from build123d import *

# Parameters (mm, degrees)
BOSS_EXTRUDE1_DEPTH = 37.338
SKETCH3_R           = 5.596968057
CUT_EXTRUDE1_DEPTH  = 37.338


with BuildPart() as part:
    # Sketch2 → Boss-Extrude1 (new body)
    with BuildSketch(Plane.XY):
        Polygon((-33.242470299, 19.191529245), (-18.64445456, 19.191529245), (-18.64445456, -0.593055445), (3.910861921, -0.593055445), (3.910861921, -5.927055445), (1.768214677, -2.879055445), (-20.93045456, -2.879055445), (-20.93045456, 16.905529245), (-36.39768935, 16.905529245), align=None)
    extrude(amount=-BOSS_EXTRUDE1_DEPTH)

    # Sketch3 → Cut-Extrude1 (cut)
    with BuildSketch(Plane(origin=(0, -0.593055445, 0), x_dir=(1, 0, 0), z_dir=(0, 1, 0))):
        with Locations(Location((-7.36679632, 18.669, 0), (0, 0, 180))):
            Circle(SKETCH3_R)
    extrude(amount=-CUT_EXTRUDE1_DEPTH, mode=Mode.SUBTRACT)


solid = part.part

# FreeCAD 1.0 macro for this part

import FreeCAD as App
import Part
import Sketcher
Q = App.Units.Quantity

doc = App.newDocument("Part")
body = doc.addObject("PartDesign::Body", "Body")

# Sketch on XY plane
sketch1 = body.newObject("Sketcher::SketchObject", "Sketch")
sketch1.AttachmentSupport = (doc.getObject("XY_Plane"), [""])
sketch1.MapMode = "FlatFace"
sketch1.addGeometry([
    Part.LineSegment(App.Vector(-18.6, 19.2, 0), App.Vector(-33.2, 19.2, 0)),  # 0
    Part.LineSegment(App.Vector(-33.2, 19.2, 0), App.Vector(-36.4, 16.9, 0)),  # 1
    Part.LineSegment(App.Vector(-36.4, 16.9, 0), App.Vector(-20.9, 16.9, 0)),  # 2
    Part.LineSegment(App.Vector(-20.9, 16.9, 0), App.Vector(-20.9, -2.9, 0)),  # 3
    Part.LineSegment(App.Vector(-20.9, -2.9, 0), App.Vector(1.8, -2.9, 0)),  # 4
    Part.LineSegment(App.Vector(1.8, -2.9, 0), App.Vector(3.9, -5.9, 0)),  # 5
    Part.LineSegment(App.Vector(3.9, -5.9, 0), App.Vector(3.9, -0.6, 0)),  # 6
    Part.LineSegment(App.Vector(3.9, -0.6, 0), App.Vector(-18.6, -0.6, 0)),  # 7
    Part.LineSegment(App.Vector(-18.6, -0.6, 0), App.Vector(-18.6, 19.2, 0)),  # 8
], False)
sketch1.addConstraint([
    Sketcher.Constraint("Coincident", 0, 2, 1, 1),
    Sketcher.Constraint("Coincident", 1, 2, 2, 1),
    Sketcher.Constraint("Coincident", 2, 2, 3, 1),
    Sketcher.Constraint("Coincident", 3, 2, 4, 1),
    Sketcher.Constraint("Coincident", 4, 2, 5, 1),
    Sketcher.Constraint("Coincident", 5, 2, 6, 1),
    Sketcher.Constraint("Coincident", 6, 2, 7, 1),
    Sketcher.Constraint("Coincident", 7, 2, 8, 1),
    Sketcher.Constraint("Coincident", 8, 2, 0, 1),
    Sketcher.Constraint("Horizontal", 0),
    Sketcher.Constraint("Horizontal", 2),
    Sketcher.Constraint("Vertical", 3),
    Sketcher.Constraint("Horizontal", 4),
    Sketcher.Constraint("Vertical", 6),
    Sketcher.Constraint("Horizontal", 7),
    Sketcher.Constraint("Vertical", 8),
    Sketcher.Constraint("Equal", 3, 8),
    Sketcher.Constraint("DistanceY", 6, 1, 6, 2, Q("0.21 in")),
    Sketcher.Constraint("DistanceY", 1, 2, 0, 2, Q("0.09 in")),
    Sketcher.Constraint("DistanceX", 3, 2, 7, 2, Q("0.09 in")),
    Sketcher.Constraint("DistanceX", 4, 1, 4, 2, Q("22.698669 mm")),
    Sketcher.Constraint("DistanceX", 0, 2, 0, 1, Q("14.598016 mm")),
    Sketcher.Constraint("DistanceX", 2, 1, 2, 2, Q("15.467235 mm")),
    Sketcher.Constraint("DistanceX", 7, 2, 7, 1, Q("22.555316 mm")),
    Sketcher.Constraint("DistanceY", 3, 2, 3, 1, Q("19.784585 mm")),
    Sketcher.Constraint("DistanceX", 0, 2, -1, 1, Q("33.24247 mm")),
    Sketcher.Constraint("DistanceY", -1, 1, 0, 2, Q("19.191529 mm")),
])
pad1 = body.newObject("PartDesign::Pad", "Pad")
pad1.Profile = sketch1
pad1.Length = Q("1.47 in")
pad1.Reversed = True

# Sketch on XZ plane
sketch2 = body.newObject("Sketcher::SketchObject", "Sketch001")
sketch2.AttachmentSupport = (doc.getObject("XZ_Plane"), [""])
sketch2.MapMode = "FlatFace"
sketch2.AttachmentOffset = App.Placement(App.Vector(0, 0, 0.593055), App.Rotation())
sketch2.addGeometry(Part.Circle(App.Vector(-7, -19, 0), App.Vector(0, 0, 1), 6), False)
sketch2.addConstraint([
    Sketcher.Constraint("DistanceY", 0, 3, -1, 1, Q("0.735 in")),
    Sketcher.Constraint("Diameter", 0, Q("11.193936 mm")),
    Sketcher.Constraint("DistanceX", 0, 3, -1, 1, Q("7.366796 mm")),
])
pocket1 = body.newObject("PartDesign::Pocket", "Pocket")
pocket1.Profile = sketch2
pocket1.Length = Q("1.47 in")
pocket1.Reversed = True

doc.recompute()
